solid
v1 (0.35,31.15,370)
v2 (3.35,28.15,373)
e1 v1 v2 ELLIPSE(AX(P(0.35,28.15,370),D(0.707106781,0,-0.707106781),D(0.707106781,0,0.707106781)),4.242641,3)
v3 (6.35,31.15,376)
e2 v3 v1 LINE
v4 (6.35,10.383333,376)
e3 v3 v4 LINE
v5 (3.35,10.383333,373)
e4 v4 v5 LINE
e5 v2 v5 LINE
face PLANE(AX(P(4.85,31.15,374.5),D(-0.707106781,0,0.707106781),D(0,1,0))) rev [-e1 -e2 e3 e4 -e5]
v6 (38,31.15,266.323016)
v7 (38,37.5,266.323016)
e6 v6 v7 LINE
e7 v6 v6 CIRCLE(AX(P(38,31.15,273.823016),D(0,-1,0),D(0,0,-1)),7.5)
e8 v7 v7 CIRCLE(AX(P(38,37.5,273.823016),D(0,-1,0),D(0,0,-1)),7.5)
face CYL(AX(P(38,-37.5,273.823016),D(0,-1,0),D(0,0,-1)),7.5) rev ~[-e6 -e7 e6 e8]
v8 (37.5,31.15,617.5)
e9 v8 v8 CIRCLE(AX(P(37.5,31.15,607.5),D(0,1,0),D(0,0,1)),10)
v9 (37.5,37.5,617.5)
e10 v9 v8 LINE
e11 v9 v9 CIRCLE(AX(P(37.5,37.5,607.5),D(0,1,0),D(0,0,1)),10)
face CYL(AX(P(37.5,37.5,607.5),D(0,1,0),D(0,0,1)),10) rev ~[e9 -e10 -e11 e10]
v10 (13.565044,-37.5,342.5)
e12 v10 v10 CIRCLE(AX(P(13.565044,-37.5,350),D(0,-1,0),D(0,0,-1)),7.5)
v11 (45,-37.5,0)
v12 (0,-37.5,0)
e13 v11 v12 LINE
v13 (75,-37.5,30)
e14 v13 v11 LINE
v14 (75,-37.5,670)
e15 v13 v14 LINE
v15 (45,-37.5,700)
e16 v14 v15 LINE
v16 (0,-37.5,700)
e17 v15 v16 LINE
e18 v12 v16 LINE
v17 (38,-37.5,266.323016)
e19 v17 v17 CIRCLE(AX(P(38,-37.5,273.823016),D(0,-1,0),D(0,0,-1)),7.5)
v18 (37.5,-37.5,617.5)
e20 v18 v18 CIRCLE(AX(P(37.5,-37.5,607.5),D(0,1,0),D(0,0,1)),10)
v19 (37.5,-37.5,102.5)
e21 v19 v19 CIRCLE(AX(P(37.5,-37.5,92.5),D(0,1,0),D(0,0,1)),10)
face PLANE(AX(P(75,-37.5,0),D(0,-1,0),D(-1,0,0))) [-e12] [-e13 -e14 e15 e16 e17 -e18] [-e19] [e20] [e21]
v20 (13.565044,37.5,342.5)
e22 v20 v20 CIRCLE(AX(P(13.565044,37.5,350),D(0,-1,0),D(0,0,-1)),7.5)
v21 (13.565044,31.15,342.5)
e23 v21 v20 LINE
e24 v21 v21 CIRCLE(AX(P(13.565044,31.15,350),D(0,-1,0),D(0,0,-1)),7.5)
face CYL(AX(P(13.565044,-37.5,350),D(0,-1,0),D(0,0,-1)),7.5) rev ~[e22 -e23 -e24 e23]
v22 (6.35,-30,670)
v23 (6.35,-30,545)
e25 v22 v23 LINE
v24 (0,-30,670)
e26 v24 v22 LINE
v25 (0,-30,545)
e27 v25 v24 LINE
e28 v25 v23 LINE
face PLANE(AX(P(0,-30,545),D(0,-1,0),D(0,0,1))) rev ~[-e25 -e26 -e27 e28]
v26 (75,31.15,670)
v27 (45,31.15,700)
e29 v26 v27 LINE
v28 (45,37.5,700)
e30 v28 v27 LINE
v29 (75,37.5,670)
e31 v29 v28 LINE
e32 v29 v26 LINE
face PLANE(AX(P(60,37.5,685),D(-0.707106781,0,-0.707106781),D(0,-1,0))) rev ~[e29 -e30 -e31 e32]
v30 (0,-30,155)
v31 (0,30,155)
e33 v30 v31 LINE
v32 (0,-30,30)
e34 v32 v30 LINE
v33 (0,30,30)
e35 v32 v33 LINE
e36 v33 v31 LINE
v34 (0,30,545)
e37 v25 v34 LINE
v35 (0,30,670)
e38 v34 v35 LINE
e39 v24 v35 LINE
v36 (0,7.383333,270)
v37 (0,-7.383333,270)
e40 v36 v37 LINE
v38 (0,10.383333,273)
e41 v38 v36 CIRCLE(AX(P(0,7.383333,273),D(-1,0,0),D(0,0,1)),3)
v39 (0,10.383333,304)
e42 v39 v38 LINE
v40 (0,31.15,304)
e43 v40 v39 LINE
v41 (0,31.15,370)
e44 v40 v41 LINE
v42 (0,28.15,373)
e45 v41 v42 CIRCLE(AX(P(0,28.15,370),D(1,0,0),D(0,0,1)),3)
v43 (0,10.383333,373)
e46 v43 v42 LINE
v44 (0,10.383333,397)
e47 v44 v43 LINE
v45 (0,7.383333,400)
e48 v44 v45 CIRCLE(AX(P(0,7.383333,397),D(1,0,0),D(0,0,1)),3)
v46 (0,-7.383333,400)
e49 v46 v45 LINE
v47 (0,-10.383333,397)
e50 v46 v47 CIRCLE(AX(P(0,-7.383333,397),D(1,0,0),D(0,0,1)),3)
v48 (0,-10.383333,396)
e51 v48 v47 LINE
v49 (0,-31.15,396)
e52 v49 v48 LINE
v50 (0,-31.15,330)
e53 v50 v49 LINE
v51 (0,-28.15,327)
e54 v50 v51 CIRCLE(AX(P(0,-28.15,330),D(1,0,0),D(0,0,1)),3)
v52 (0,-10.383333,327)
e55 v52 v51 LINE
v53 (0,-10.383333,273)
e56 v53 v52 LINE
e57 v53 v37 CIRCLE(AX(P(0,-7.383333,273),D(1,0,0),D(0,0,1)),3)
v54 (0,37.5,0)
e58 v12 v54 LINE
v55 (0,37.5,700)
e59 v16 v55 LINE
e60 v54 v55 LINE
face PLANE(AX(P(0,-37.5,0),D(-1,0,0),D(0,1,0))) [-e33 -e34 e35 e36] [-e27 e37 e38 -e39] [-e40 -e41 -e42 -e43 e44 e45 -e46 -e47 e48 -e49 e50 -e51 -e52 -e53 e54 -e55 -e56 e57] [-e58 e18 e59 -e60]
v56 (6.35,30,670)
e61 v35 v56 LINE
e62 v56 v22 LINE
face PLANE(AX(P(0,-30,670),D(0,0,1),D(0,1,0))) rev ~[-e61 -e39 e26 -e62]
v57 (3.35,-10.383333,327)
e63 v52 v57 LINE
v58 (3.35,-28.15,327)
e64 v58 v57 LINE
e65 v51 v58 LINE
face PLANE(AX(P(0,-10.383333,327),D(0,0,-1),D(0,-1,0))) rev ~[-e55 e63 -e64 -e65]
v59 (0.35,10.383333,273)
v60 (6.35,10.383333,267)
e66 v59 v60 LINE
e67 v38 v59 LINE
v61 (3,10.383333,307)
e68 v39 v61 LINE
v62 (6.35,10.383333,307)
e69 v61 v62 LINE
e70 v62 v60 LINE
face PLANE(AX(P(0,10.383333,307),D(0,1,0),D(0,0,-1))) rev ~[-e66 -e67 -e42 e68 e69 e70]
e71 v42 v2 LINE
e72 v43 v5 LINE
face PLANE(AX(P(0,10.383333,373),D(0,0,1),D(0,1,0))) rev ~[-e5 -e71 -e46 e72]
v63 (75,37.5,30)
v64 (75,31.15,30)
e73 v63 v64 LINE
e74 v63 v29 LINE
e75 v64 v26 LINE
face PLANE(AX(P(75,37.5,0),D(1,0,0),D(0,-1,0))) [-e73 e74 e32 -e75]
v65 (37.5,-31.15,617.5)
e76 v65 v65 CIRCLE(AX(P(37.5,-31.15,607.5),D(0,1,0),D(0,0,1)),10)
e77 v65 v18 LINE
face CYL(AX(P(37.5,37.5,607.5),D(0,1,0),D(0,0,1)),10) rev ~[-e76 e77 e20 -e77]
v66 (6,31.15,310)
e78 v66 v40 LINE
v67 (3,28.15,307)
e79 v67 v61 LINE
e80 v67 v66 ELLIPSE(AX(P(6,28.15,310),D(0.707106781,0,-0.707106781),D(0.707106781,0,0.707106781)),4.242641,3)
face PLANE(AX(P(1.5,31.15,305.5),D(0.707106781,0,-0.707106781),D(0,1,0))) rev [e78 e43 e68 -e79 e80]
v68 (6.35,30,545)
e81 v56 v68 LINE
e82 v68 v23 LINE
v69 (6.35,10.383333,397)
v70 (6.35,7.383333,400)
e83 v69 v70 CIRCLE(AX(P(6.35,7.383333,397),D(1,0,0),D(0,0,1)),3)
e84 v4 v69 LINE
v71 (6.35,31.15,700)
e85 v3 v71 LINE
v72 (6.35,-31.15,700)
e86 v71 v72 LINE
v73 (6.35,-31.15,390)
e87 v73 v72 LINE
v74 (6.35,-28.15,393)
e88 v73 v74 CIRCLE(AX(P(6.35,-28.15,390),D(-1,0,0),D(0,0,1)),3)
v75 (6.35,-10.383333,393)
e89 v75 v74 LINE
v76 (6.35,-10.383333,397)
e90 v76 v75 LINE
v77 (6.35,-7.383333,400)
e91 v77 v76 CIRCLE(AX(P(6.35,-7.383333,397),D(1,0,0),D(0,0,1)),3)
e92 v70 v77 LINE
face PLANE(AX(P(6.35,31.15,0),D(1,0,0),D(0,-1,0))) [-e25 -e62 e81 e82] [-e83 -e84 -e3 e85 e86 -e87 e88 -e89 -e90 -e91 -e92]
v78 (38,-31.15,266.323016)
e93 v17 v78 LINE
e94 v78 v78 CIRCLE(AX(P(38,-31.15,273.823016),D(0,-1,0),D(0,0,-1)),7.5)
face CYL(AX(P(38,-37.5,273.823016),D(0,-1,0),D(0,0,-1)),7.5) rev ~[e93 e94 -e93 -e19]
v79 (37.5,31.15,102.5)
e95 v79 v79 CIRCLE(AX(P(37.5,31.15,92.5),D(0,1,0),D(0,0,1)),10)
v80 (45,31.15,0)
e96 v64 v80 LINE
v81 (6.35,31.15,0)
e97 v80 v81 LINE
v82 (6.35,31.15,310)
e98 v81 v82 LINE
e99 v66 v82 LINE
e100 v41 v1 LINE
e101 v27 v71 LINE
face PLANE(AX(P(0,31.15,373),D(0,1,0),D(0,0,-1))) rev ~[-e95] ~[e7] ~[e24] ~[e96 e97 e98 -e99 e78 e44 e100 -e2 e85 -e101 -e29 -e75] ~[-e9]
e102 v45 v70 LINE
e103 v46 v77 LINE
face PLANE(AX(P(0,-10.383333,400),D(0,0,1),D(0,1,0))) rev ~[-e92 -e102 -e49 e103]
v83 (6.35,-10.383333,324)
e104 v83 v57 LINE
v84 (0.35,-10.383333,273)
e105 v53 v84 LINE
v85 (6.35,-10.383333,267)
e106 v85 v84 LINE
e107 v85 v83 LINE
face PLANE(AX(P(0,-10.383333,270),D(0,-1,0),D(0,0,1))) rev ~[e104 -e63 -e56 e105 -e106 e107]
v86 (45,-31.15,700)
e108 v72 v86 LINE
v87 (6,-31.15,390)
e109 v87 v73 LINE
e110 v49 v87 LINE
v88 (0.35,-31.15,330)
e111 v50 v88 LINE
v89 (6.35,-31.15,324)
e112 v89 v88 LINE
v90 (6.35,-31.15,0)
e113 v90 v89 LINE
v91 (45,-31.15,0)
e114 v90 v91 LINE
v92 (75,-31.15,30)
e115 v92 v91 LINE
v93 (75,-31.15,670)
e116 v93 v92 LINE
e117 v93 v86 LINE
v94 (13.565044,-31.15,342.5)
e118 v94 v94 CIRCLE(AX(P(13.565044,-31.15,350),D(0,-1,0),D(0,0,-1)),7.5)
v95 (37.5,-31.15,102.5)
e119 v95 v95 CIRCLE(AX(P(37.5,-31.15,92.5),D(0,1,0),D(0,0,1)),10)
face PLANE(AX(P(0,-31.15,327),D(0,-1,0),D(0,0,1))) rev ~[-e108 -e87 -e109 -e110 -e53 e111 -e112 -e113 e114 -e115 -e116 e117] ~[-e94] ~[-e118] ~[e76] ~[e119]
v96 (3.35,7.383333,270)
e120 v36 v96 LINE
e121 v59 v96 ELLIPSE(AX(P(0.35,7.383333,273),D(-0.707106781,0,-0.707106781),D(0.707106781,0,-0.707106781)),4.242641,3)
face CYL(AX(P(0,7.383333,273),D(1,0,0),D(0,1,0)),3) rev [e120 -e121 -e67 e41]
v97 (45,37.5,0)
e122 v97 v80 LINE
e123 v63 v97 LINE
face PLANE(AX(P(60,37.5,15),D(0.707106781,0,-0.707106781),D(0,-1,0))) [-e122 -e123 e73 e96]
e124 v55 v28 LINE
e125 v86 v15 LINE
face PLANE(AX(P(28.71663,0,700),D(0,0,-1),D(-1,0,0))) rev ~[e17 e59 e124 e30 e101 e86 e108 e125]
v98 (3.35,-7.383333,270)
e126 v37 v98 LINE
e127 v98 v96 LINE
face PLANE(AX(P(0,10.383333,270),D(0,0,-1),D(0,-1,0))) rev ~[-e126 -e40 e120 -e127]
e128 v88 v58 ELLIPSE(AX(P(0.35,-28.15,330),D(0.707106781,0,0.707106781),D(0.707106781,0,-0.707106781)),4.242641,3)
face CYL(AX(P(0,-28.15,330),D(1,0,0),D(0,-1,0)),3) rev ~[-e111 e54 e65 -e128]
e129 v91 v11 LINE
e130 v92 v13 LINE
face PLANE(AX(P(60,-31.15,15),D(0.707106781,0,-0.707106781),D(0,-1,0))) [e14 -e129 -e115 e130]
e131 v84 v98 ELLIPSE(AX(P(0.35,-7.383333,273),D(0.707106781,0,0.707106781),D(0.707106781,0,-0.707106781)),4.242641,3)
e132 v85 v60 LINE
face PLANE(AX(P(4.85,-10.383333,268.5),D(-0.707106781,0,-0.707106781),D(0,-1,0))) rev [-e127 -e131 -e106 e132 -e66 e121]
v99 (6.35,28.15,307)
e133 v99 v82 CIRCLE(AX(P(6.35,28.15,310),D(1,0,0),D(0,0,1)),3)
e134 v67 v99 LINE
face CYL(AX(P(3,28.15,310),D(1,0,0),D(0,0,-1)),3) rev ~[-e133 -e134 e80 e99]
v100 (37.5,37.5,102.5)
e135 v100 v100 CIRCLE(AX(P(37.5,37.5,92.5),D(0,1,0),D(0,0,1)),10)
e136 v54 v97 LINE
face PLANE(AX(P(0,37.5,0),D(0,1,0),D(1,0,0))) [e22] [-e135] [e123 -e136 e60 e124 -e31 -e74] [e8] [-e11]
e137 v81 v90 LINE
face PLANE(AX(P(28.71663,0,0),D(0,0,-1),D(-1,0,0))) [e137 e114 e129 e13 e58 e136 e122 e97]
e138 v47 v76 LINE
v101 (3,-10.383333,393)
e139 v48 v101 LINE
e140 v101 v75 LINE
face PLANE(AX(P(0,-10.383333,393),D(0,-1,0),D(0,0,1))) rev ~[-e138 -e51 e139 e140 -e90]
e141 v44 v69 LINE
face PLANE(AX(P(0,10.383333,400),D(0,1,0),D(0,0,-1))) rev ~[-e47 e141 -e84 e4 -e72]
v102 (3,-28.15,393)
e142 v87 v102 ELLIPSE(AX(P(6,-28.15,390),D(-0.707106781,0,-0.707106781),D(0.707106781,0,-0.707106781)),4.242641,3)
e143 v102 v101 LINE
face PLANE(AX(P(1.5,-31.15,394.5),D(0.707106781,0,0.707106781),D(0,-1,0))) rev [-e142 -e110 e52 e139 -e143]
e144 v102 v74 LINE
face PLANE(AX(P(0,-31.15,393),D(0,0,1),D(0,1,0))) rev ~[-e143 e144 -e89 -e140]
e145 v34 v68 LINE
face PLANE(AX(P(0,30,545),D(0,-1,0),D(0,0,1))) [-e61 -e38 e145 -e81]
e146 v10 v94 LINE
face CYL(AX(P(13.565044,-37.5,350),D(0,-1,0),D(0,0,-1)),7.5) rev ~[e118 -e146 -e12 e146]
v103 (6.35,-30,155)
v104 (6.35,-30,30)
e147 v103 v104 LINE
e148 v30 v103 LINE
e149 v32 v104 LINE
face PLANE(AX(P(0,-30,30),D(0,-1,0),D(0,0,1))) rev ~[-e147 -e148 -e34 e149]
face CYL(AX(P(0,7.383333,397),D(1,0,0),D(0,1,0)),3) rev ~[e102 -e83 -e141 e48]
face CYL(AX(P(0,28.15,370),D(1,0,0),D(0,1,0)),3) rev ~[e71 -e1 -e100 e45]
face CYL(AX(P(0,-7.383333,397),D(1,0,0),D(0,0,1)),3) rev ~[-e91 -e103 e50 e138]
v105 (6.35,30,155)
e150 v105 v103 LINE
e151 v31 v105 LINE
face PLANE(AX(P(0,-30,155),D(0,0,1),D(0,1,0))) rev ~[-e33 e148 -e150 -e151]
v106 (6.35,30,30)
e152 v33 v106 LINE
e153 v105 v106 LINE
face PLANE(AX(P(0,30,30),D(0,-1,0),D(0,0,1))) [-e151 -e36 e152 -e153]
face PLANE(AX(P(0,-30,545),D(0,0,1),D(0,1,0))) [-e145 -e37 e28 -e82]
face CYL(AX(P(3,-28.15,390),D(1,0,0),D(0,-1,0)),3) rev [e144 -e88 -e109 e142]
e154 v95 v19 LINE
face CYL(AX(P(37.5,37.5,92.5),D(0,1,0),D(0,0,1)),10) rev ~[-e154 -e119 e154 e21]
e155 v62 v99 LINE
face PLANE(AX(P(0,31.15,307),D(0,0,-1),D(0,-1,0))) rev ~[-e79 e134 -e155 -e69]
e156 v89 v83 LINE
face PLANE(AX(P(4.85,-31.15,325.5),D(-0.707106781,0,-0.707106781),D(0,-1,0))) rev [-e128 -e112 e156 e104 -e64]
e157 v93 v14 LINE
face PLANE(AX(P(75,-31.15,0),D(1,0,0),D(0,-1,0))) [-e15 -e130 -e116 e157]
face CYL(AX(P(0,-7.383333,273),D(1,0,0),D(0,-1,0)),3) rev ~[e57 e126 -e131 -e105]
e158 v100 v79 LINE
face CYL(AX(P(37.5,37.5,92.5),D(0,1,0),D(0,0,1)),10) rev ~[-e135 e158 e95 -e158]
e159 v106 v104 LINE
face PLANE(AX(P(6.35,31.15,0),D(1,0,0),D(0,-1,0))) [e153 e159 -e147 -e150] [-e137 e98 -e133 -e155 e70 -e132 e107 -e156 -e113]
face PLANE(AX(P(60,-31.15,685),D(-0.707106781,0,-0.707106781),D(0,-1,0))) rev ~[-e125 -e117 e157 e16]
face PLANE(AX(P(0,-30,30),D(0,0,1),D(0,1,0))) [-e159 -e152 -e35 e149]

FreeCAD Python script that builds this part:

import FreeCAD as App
import Part
import Sketcher
from FreeCAD import Vector
Q = App.Units.Quantity


def edges_at(feature, points):
    """Names of the edges that pass closest to the given points."""
    edges = feature.Shape.Edges
    near = lambda p: min(range(len(edges)), key=lambda i: edges[i].distToShape(Part.Vertex(*p))[0])
    return sorted({f"Edge{near(p) + 1}" for p in points})


def add_polygon(sketch, points):
    """Adds a closed chain of lines whose ends are joined by coincident constraints."""
    first, n = sketch.GeometryCount, len(points)
    for a, b in zip(points, points[1:] + points[:1]):
        sketch.addGeometry(Part.LineSegment(App.Vector(*a, 0), App.Vector(*b, 0)), False)
    for i in range(n):
        sketch.addConstraint(Sketcher.Constraint("Coincident", first + i, 2, first + (i + 1) % n, 1))

doc = App.newDocument("Part")
params = doc.addObject("Spreadsheet::Sheet", "Params")
for row, (alias, value) in enumerate([
    ("sketch1_width", "75 mm"),
    ("sketch1_height", "62.3 mm"),
    ("sketch1_width2", "68.65 mm"),
    ("pad1_length", "700 mm"),
    ("sketch2_width", "60 mm"),
    ("sketch2_height", "125 mm"),
    ("sketch2_height2", "27 mm"),
    ("sketch2_height3", "66 mm"),
    ("sketch2_height4", "37 mm"),
    ("chamfer_size", "30 mm"),
    ("sketch3_diameter", "20 mm"),
    ("sketch4_diameter", "15 mm"),
    ("chamfer2_size", "3 mm"),
    ("fillet_radius", "3 mm"),
], start=1):
    params.set(f"A{row}", alias)
    params.set(f"B{row}", "=" + value)
    params.setAlias(f"B{row}", alias)

body = doc.addObject("PartDesign::Body", "Body")

# Sketch on XY plane
sketch1 = body.newObject("Sketcher::SketchObject", "Sketch")
sketch1.AttachmentSupport = (doc.getObject("XY_Plane"), [""])
sketch1.MapMode = "FlatFace"
add_polygon(sketch1, [(0, 38), (0, -38), (75, -38), (75, -31), (6, -31), (6, 31), (75, 31), (75, 38)])  # lines 0-7
sketch1.addConstraint(Sketcher.Constraint("Vertical", 0))
sketch1.addConstraint(Sketcher.Constraint("Horizontal", 1))
sketch1.addConstraint(Sketcher.Constraint("Vertical", 2))
sketch1.addConstraint(Sketcher.Constraint("Horizontal", 3))
sketch1.addConstraint(Sketcher.Constraint("Vertical", 4))
sketch1.addConstraint(Sketcher.Constraint("Horizontal", 5))
sketch1.addConstraint(Sketcher.Constraint("Vertical", 6))
sketch1.addConstraint(Sketcher.Constraint("Horizontal", 7))
sketch1.addConstraint(Sketcher.Constraint("Symmetric", 0, 2, 7, 2, -1, 1))
sketch1.addConstraint(Sketcher.Constraint("Symmetric", 2, 2, 5, 2, -1))
sketch1.addConstraint(Sketcher.Constraint("Equal", 7, 0))
sketch1.addConstraint(Sketcher.Constraint("DistanceX", 1, 1, 1, 2, Q("75 mm")))
sketch1.addConstraint(Sketcher.Constraint("DistanceY", 4, 1, 4, 2, Q("62.3 mm")))
sketch1.addConstraint(Sketcher.Constraint("DistanceX", 3, 2, 3, 1, Q("68.65 mm")))
sketch1.setExpression("Constraints[19]", "Params.sketch1_width")
sketch1.setExpression("Constraints[20]", "Params.sketch1_height")
sketch1.setExpression("Constraints[21]", "Params.sketch1_width2")
pad1 = body.newObject("PartDesign::Pad", "Pad")
pad1.Profile = sketch1
pad1.setExpression("Length", "Params.pad1_length")

# Sketch on YZ plane
sketch2 = body.newObject("Sketcher::SketchObject", "Sketch001")
sketch2.AttachmentSupport = (doc.getObject("YZ_Plane"), [""])
sketch2.MapMode = "FlatFace"
add_polygon(sketch2, [(30, 30), (-30, 30), (-30, 155), (30, 155)])  # lines 0-3
add_polygon(sketch2, [(30, 545), (-30, 545), (-30, 670), (30, 670)])  # lines 4-7
add_polygon(sketch2, [(10, 400), (10, 373), (31, 373), (31, 307), (10, 307), (10, 270), (-10, 270), (-10, 327), (-31, 327), (-31, 393), (-10, 393), (-10, 400)])  # lines 8-19
sketch2.addConstraint(Sketcher.Constraint("Horizontal", 0))
sketch2.addConstraint(Sketcher.Constraint("Vertical", 1))
sketch2.addConstraint(Sketcher.Constraint("Horizontal", 2))
sketch2.addConstraint(Sketcher.Constraint("Vertical", 3))
sketch2.addConstraint(Sketcher.Constraint("Horizontal", 4))
sketch2.addConstraint(Sketcher.Constraint("Vertical", 5))
sketch2.addConstraint(Sketcher.Constraint("Horizontal", 6))
sketch2.addConstraint(Sketcher.Constraint("Vertical", 7))
sketch2.addConstraint(Sketcher.Constraint("Vertical", 8))
sketch2.addConstraint(Sketcher.Constraint("Horizontal", 9))
sketch2.addConstraint(Sketcher.Constraint("Vertical", 10))
sketch2.addConstraint(Sketcher.Constraint("Horizontal", 11))
sketch2.addConstraint(Sketcher.Constraint("Vertical", 12))
sketch2.addConstraint(Sketcher.Constraint("Horizontal", 13))
sketch2.addConstraint(Sketcher.Constraint("Vertical", 14))
sketch2.addConstraint(Sketcher.Constraint("Horizontal", 15))
sketch2.addConstraint(Sketcher.Constraint("Vertical", 16))
sketch2.addConstraint(Sketcher.Constraint("Horizontal", 17))
sketch2.addConstraint(Sketcher.Constraint("Vertical", 18))
sketch2.addConstraint(Sketcher.Constraint("Horizontal", 19))
sketch2.addConstraint(Sketcher.Constraint("Vertical", 1, 2, 4, 2))
sketch2.addConstraint(Sketcher.Constraint("Vertical", 3, 2, 6, 2))
sketch2.addConstraint(Sketcher.Constraint("Vertical", 8, 2, 11, 2))
sketch2.addConstraint(Sketcher.Constraint("Vertical", 14, 2, 17, 2))
sketch2.addConstraint(Sketcher.Constraint("Equal", 11, 13))
sketch2.addConstraint(Sketcher.Constraint("Equal", 13, 15))
sketch2.addConstraint(Sketcher.Constraint("Equal", 3, 5))
sketch2.addConstraint(Sketcher.Constraint("Equal", 10, 16))
sketch2.addConstraint(Sketcher.Constraint("DistanceX", 0, 2, 0, 1, Q("60 mm")))
sketch2.addConstraint(Sketcher.Constraint("DistanceY", 1, 1, 1, 2, Q("125 mm")))
sketch2.addConstraint(Sketcher.Constraint("DistanceY", 8, 2, 8, 1, Q("27 mm")))
sketch2.addConstraint(Sketcher.Constraint("DistanceY", 10, 2, 10, 1, Q("66 mm")))
sketch2.addConstraint(Sketcher.Constraint("DistanceY", 12, 2, 12, 1, Q("37 mm")))
sketch2.addConstraint(Sketcher.Constraint("DistanceY", 14, 1, 14, 2, Q("57 mm")))
sketch2.addConstraint(Sketcher.Constraint("DistanceX", 0, 2, -1, 1, Q("30 mm")))
sketch2.addConstraint(Sketcher.Constraint("DistanceY", -1, 1, 0, 2, Q("30 mm")))
sketch2.addConstraint(Sketcher.Constraint("DistanceY", -1, 1, 4, 2, Q("545 mm")))
sketch2.addConstraint(Sketcher.Constraint("DistanceY", -1, 1, 8, 2, Q("373 mm")))
sketch2.addConstraint(Sketcher.Constraint("DistanceX", 15, 2, 10, 2, Q("62.3 mm")))
sketch2.addConstraint(Sketcher.Constraint("DistanceX", -1, 1, 9, 2, Q("31.15 mm")))
sketch2.setExpression("Constraints[48]", "Params.sketch2_width")
sketch2.setExpression("Constraints[49]", "Params.sketch2_height")
sketch2.setExpression("Constraints[50]", "Params.sketch2_height2")
sketch2.setExpression("Constraints[51]", "Params.sketch2_height3")
sketch2.setExpression("Constraints[52]", "Params.sketch2_height4")
pocket1 = body.newObject("PartDesign::Pocket", "Pocket")
pocket1.Profile = sketch2
pocket1.Type = "ThroughAll"
pocket1.Reversed = True
doc.recompute()

chamfer = body.newObject("PartDesign::Chamfer", "Chamfer")
chamfer.Base = (pocket1, edges_at(pocket1, [
    (75, -34.325, 0),
    (75, 34.325, 700),
    (75, -34.325, 700),
    (75, 34.325, 0),
]))
chamfer.setExpression("Size", "Params.chamfer_size")

# Sketch on XZ plane
sketch3 = body.newObject("Sketcher::SketchObject", "Sketch002")
sketch3.AttachmentSupport = (doc.getObject("XZ_Plane"), [""])
sketch3.MapMode = "FlatFace"
sketch3.AttachmentOffset = App.Placement(Vector(0, 0, -37.5), App.Rotation())
sketch3.addGeometry(Part.Circle(Vector(38, 608, 0), Vector(0, 0, 1), 10), False)
sketch3.addGeometry(Part.Circle(Vector(38, 92, 0), Vector(0, 0, 1), 10), False)
sketch3.addConstraint(Sketcher.Constraint("Equal", 0, 1))
sketch3.addConstraint(Sketcher.Constraint("Vertical", 0, 3, 1, 3))
sketch3.addConstraint(Sketcher.Constraint("Diameter", 0, Q("20 mm")))
sketch3.addConstraint(Sketcher.Constraint("DistanceY", 1, 3, 0, 3, Q("515 mm")))
sketch3.addConstraint(Sketcher.Constraint("DistanceX", -1, 1, 0, 3, Q("37.5 mm")))
sketch3.addConstraint(Sketcher.Constraint("DistanceY", -1, 1, 0, 3, Q("607.5 mm")))
sketch3.setExpression("Constraints[2]", "Params.sketch3_diameter")
pocket2 = body.newObject("PartDesign::Pocket", "Pocket001")
pocket2.Profile = sketch3
pocket2.Type = "ThroughAll"
pocket2.Reversed = True

# Sketch on XZ plane
sketch4 = body.newObject("Sketcher::SketchObject", "Sketch003")
sketch4.AttachmentSupport = (doc.getObject("XZ_Plane"), [""])
sketch4.MapMode = "FlatFace"
sketch4.AttachmentOffset = App.Placement(Vector(0, 0, 37.5), App.Rotation())
sketch4.addGeometry(Part.Circle(Vector(38, 274, 0), Vector(0, 0, 1), 8), False)
sketch4.addGeometry(Part.Circle(Vector(14, 350, 0), Vector(0, 0, 1), 8), False)
sketch4.addConstraint(Sketcher.Constraint("Equal", 0, 1))
sketch4.addConstraint(Sketcher.Constraint("Diameter", 0, Q("15 mm")))
sketch4.addConstraint(Sketcher.Constraint("DistanceX", -1, 1, 0, 3, Q("38 mm")))
sketch4.addConstraint(Sketcher.Constraint("DistanceY", -1, 1, 1, 3, Q("350 mm")))
sketch4.addConstraint(Sketcher.Constraint("DistanceY", -1, 1, 0, 3, Q("273.823016 mm")))
sketch4.addConstraint(Sketcher.Constraint("DistanceX", -1, 1, 1, 3, Q("13.565044 mm")))
sketch4.setExpression("Constraints[1]", "Params.sketch4_diameter")
pocket3 = body.newObject("PartDesign::Pocket", "Pocket002")
pocket3.Profile = sketch4
pocket3.Type = "ThroughAll"
doc.recompute()

chamfer2 = body.newObject("PartDesign::Chamfer", "Chamfer001")
chamfer2.Base = (pocket3, edges_at(pocket3, [
    (6.35, -20.767, 327),
    (6.35, 0, 270),
    (6.35, 20.767, 373),
    (0, -20.767, 393),
    (0, 20.767, 307),
]))
chamfer2.setExpression("Size", "Params.chamfer2_size")
doc.recompute()

fillet = body.newObject("PartDesign::Fillet", "Fillet")
fillet.Base = (chamfer2, edges_at(chamfer2, [
    (1.675, 10.383, 270),
    (1.675, -10.383, 270),
    (1.675, 31.15, 373),
    (1.675, -31.15, 327),
    (4.675, -31.15, 393),
    (4.675, 31.15, 307),
    (3.175, 10.383, 400),
    (3.175, -10.383, 400),
]))
fillet.setExpression("Radius", "Params.fillet_radius")

doc.recompute()
